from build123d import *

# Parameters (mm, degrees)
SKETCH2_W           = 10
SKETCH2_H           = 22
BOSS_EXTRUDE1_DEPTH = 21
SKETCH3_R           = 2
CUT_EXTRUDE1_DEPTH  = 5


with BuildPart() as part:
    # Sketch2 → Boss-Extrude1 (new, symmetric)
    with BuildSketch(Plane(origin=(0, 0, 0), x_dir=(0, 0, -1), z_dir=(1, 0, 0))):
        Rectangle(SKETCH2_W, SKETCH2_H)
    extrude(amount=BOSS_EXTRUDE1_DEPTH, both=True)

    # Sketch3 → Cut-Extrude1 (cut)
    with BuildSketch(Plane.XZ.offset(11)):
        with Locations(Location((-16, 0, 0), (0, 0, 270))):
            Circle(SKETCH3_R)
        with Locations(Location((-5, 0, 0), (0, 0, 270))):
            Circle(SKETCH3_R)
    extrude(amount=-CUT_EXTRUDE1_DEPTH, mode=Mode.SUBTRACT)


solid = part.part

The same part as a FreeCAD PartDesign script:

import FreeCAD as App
import Part
import Sketcher

V = App.Vector
Q = App.Units.Quantity

doc = App.newDocument("Part")
body = doc.addObject("PartDesign::Body", "Body")

# Sketch on YZ plane
sketch1 = body.newObject("Sketcher::SketchObject", "Sketch")
sketch1.AttachmentSupport = (doc.getObject("YZ_Plane"), [""])
sketch1.MapMode = "FlatFace"
sketch1.addGeometry([
    Part.LineSegment(V(11, 5, 0), V(-11, 5, 0)),
    Part.LineSegment(V(-11, 5, 0), V(-11, -5, 0)),
    Part.LineSegment(V(-11, -5, 0), V(11, -5, 0)),
    Part.LineSegment(V(11, -5, 0), V(11, 5, 0)),
], False)
sketch1.addConstraint([
    Sketcher.Constraint("Coincident", 0, 2, 1, 1),
    Sketcher.Constraint("Coincident", 1, 2, 2, 1),
    Sketcher.Constraint("Coincident", 2, 2, 3, 1),
    Sketcher.Constraint("Coincident", 3, 2, 0, 1),
    Sketcher.Constraint("Horizontal", 0),
    Sketcher.Constraint("Vertical", 1),
    Sketcher.Constraint("Horizontal", 2),
    Sketcher.Constraint("Vertical", 3),
    Sketcher.Constraint("Symmetric", 0, 2, 2, 2, -1, 1),
    Sketcher.Constraint("DistanceX", 0, 2, 0, 1, Q("22 mm")),
    Sketcher.Constraint("DistanceY", 1, 2, 1, 1, Q("10 mm")),
])
pad1 = body.newObject("PartDesign::Pad", "Pad")
pad1.Profile = sketch1
pad1.Length = 42
pad1.Midplane = True

# Sketch on XZ plane
sketch2 = body.newObject("Sketcher::SketchObject", "Sketch001")
sketch2.AttachmentSupport = (doc.getObject("XZ_Plane"), [""])
sketch2.MapMode = "FlatFace"
sketch2.AttachmentOffset = App.Placement(V(0, 0, 11), App.Rotation())
sketch2.addGeometry([
    Part.Circle(V(-16, 0, 0), V(0, 0, 1), 2),
    Part.Circle(V(-5, 0, 0), V(0, 0, 1), 2),
], False)
sketch2.addConstraint([
    Sketcher.Constraint("Equal", 0, 1),
    Sketcher.Constraint("PointOnObject", 0, 3, -1),
    Sketcher.Constraint("PointOnObject", 1, 3, -1),
    Sketcher.Constraint("Diameter", 0, Q("4 mm")),
    Sketcher.Constraint("DistanceX", 0, 3, -1, 1, Q("16 mm")),
    Sketcher.Constraint("DistanceX", 1, 3, -1, 1, Q("5 mm")),
])
pocket1 = body.newObject("PartDesign::Pocket", "Pocket")
pocket1.Profile = sketch2
pocket1.Length = 5

doc.recompute()
